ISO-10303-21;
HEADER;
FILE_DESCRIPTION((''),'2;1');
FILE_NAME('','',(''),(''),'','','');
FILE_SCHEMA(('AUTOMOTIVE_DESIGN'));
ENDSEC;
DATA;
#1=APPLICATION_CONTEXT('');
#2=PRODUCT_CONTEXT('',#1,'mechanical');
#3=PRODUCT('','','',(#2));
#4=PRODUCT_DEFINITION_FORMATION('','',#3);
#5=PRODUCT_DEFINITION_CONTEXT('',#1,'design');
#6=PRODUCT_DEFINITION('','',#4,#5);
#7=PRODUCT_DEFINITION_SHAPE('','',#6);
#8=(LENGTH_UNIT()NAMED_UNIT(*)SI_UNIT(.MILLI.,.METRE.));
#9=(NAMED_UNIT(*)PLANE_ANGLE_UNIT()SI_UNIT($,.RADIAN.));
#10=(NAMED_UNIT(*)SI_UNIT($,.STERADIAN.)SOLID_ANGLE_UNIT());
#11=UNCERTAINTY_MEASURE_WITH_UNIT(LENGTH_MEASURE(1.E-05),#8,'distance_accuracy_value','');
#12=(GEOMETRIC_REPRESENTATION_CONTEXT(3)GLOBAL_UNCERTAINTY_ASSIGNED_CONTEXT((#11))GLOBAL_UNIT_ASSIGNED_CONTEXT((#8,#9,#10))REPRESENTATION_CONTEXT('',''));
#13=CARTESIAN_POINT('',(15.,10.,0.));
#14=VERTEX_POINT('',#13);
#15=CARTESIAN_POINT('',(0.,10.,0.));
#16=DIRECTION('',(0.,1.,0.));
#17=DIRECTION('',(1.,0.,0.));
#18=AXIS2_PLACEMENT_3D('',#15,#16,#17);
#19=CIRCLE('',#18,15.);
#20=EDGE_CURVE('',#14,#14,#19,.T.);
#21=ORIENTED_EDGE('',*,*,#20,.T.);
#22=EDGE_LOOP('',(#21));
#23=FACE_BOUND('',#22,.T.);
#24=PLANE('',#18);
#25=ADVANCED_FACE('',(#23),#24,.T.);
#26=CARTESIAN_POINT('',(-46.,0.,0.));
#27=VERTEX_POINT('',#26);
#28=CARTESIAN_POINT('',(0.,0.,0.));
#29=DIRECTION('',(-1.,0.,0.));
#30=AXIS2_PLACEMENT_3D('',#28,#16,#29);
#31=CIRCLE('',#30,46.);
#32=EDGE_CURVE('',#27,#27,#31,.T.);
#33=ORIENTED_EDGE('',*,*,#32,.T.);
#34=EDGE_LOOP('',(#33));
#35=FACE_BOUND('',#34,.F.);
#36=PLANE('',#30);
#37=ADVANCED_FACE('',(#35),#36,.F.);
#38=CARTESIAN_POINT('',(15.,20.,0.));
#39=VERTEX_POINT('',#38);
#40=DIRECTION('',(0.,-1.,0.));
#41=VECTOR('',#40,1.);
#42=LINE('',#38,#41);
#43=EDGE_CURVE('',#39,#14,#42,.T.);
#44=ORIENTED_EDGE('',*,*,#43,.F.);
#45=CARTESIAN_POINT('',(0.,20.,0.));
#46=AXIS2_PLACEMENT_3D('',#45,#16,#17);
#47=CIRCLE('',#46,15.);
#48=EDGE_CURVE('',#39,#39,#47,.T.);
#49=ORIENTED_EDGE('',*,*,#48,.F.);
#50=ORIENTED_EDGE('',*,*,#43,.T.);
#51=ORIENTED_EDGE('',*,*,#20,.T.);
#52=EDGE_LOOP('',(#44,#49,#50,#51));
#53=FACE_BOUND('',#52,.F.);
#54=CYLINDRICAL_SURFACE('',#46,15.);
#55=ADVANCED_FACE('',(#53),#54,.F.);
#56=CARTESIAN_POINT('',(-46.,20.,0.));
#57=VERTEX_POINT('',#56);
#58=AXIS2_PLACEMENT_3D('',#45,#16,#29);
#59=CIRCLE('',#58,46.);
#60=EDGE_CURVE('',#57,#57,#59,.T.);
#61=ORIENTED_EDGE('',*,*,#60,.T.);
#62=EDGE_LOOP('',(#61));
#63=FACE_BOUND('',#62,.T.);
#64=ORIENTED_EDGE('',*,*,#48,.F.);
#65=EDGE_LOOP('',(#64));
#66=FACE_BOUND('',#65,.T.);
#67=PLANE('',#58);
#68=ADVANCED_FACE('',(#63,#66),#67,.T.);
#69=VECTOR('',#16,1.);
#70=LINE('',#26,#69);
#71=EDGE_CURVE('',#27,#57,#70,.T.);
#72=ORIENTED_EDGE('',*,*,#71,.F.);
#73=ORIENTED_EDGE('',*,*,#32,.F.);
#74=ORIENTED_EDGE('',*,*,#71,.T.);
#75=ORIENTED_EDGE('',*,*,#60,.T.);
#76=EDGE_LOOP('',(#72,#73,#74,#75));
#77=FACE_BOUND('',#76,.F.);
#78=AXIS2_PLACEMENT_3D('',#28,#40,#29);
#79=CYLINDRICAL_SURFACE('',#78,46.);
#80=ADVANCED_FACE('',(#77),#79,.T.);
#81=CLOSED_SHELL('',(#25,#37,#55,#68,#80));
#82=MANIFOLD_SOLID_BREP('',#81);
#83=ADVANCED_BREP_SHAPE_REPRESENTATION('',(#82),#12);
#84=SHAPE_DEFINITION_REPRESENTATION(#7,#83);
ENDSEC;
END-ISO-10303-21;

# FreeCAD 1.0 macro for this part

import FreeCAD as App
import Part
import Sketcher

V = App.Vector
Q = App.Units.Quantity

doc = App.newDocument("Part")
body = doc.addObject("PartDesign::Body", "Body")

sketch1 = body.newObject("Sketcher::SketchObject", "Sketch")
sketch1.AttachmentSupport = (doc.getObject("XZ_Plane"), [""])
sketch1.MapMode = "FlatFace"
sketch1.addGeometry(Part.Circle(V(0, 0, 0), V(0, 0, 1), 46), False)
sketch1.addConstraint([
    Sketcher.Constraint("Coincident", 0, 3, -1, 1),
    Sketcher.Constraint("Diameter", 0, Q("92 mm")),
])
pad1 = body.newObject("PartDesign::Pad", "Pad")
pad1.Profile = sketch1
pad1.Length = 20
pad1.Reversed = True

sketch2 = body.newObject("Sketcher::SketchObject", "Sketch001")
sketch2.AttachmentSupport = (doc.getObject("XZ_Plane"), [""])
sketch2.MapMode = "FlatFace"
sketch2.AttachmentOffset = App.Placement(V(0, 0, -20), App.Rotation())
sketch2.addGeometry(Part.Circle(V(0, 0, 0), V(0, 0, 1), 15), False)
sketch2.addConstraint([
    Sketcher.Constraint("Coincident", 0, 3, -1, 1),
    Sketcher.Constraint("Diameter", 0, Q("30 mm")),
])
pocket1 = body.newObject("PartDesign::Pocket", "Pocket")
pocket1.Profile = sketch2
pocket1.Length = 10
pocket1.Reversed = True

doc.recompute()
